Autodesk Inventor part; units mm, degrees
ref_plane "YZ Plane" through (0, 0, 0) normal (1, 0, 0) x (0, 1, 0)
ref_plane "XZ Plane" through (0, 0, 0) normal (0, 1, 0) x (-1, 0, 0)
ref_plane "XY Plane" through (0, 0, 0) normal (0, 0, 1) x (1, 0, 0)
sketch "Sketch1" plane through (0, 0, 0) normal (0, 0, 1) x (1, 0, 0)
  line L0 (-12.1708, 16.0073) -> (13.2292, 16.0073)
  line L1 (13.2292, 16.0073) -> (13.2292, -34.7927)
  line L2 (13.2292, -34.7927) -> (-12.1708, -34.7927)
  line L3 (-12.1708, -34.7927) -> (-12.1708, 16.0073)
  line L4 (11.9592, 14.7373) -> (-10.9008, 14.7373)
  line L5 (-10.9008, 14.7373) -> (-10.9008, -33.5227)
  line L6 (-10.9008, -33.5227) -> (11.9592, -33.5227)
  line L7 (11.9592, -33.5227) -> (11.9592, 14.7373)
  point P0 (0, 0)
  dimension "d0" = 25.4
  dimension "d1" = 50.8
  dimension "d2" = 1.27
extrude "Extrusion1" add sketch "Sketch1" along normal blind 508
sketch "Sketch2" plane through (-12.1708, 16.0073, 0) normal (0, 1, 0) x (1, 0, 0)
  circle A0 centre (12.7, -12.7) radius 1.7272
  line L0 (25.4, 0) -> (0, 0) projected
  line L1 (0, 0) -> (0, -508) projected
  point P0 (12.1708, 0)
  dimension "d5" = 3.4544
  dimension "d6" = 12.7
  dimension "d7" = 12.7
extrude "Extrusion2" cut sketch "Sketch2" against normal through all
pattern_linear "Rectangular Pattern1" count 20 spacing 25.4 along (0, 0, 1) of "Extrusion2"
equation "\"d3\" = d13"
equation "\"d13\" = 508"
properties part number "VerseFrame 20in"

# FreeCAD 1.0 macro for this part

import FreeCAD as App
import Part
import Sketcher
from FreeCAD import Vector
Q = App.Units.Quantity


def add_polygon(sketch, points):
    """Adds a closed chain of lines whose ends are joined by coincident constraints."""
    first, n = sketch.GeometryCount, len(points)
    for a, b in zip(points, points[1:] + points[:1]):
        sketch.addGeometry(Part.LineSegment(App.Vector(*a, 0), App.Vector(*b, 0)), False)
    for i in range(n):
        sketch.addConstraint(Sketcher.Constraint("Coincident", first + i, 2, first + (i + 1) % n, 1))

doc = App.newDocument("Part")
body = doc.addObject("PartDesign::Body", "Body")

sketch1 = body.newObject("Sketcher::SketchObject", "Sketch")
sketch1.AttachmentSupport = (doc.getObject("XY_Plane"), [""])
sketch1.MapMode = "FlatFace"
add_polygon(sketch1, [(13, 16), (-12, 16), (-12, -35), (13, -35)])
add_polygon(sketch1, [(-11, 15), (12, 15), (12, -34), (-11, -34)])
sketch1.addConstraint(Sketcher.Constraint("Horizontal", 0))
sketch1.addConstraint(Sketcher.Constraint("Vertical", 1))
sketch1.addConstraint(Sketcher.Constraint("Horizontal", 2))
sketch1.addConstraint(Sketcher.Constraint("Vertical", 3))
sketch1.addConstraint(Sketcher.Constraint("Horizontal", 4))
sketch1.addConstraint(Sketcher.Constraint("Vertical", 5))
sketch1.addConstraint(Sketcher.Constraint("Horizontal", 6))
sketch1.addConstraint(Sketcher.Constraint("Vertical", 7))
sketch1.addConstraint(Sketcher.Constraint("DistanceX", 0, 2, 0, 1, Q("1 in")))
sketch1.addConstraint(Sketcher.Constraint("DistanceY", 1, 2, 1, 1, Q("2 in")))
sketch1.addConstraint(Sketcher.Constraint("DistanceX", 4, 2, 3, 2, Q("0.05 in")))
sketch1.addConstraint(Sketcher.Constraint("DistanceY", 4, 2, 3, 2, Q("0.05 in")))
sketch1.addConstraint(Sketcher.Constraint("DistanceY", 2, 2, 5, 2, Q("0.05 in")))
sketch1.addConstraint(Sketcher.Constraint("DistanceX", 1, 2, 6, 2, Q("0.05 in")))
sketch1.addConstraint(Sketcher.Constraint("DistanceY", -1, 1, 0, 2, Q("0.6302 in")))
sketch1.addConstraint(Sketcher.Constraint("DistanceX", 0, 2, -1, 1, 12.1708))
pad1 = body.newObject("PartDesign::Pad", "Pad")
pad1.Profile = sketch1
pad1.Length = Q("20 in")

sketch2 = body.newObject("Sketcher::SketchObject", "Sketch001")
sketch2.AttachmentSupport = (doc.getObject("XZ_Plane"), [""])
sketch2.MapMode = "FlatFace"
sketch2.AttachmentOffset = App.Placement(Vector(0, 0, -0.6302087 * 25.4), App.Rotation())
sketch2.addGeometry(Part.Circle(Vector(0.5, 12.7, 0), Vector(0, 0, 1), 1.7), False)
sketch2.addConstraint(Sketcher.Constraint("Diameter", 0, Q("0.136 in")))
sketch2.addConstraint(Sketcher.Constraint("DistanceY", -1, 1, 0, 3, Q("0.5 in")))
sketch2.addConstraint(Sketcher.Constraint("DistanceX", -1, 1, 0, 3, 0.5292))
pocket1 = body.newObject("PartDesign::Pocket", "Pocket")
pocket1.Profile = sketch2
pocket1.Type = "ThroughAll"
pocket1.Reversed = True
doc.recompute()

linearpattern = body.newObject("PartDesign::LinearPattern", "LinearPattern")
linearpattern.Originals = [pocket1]
linearpattern.Direction = (doc.getObject("Z_Axis"), [""])
linearpattern.Mode = "offset"
linearpattern.Offset = Q("1 in")
linearpattern.Occurrences = 20
body.Tip = linearpattern

doc.recompute()
